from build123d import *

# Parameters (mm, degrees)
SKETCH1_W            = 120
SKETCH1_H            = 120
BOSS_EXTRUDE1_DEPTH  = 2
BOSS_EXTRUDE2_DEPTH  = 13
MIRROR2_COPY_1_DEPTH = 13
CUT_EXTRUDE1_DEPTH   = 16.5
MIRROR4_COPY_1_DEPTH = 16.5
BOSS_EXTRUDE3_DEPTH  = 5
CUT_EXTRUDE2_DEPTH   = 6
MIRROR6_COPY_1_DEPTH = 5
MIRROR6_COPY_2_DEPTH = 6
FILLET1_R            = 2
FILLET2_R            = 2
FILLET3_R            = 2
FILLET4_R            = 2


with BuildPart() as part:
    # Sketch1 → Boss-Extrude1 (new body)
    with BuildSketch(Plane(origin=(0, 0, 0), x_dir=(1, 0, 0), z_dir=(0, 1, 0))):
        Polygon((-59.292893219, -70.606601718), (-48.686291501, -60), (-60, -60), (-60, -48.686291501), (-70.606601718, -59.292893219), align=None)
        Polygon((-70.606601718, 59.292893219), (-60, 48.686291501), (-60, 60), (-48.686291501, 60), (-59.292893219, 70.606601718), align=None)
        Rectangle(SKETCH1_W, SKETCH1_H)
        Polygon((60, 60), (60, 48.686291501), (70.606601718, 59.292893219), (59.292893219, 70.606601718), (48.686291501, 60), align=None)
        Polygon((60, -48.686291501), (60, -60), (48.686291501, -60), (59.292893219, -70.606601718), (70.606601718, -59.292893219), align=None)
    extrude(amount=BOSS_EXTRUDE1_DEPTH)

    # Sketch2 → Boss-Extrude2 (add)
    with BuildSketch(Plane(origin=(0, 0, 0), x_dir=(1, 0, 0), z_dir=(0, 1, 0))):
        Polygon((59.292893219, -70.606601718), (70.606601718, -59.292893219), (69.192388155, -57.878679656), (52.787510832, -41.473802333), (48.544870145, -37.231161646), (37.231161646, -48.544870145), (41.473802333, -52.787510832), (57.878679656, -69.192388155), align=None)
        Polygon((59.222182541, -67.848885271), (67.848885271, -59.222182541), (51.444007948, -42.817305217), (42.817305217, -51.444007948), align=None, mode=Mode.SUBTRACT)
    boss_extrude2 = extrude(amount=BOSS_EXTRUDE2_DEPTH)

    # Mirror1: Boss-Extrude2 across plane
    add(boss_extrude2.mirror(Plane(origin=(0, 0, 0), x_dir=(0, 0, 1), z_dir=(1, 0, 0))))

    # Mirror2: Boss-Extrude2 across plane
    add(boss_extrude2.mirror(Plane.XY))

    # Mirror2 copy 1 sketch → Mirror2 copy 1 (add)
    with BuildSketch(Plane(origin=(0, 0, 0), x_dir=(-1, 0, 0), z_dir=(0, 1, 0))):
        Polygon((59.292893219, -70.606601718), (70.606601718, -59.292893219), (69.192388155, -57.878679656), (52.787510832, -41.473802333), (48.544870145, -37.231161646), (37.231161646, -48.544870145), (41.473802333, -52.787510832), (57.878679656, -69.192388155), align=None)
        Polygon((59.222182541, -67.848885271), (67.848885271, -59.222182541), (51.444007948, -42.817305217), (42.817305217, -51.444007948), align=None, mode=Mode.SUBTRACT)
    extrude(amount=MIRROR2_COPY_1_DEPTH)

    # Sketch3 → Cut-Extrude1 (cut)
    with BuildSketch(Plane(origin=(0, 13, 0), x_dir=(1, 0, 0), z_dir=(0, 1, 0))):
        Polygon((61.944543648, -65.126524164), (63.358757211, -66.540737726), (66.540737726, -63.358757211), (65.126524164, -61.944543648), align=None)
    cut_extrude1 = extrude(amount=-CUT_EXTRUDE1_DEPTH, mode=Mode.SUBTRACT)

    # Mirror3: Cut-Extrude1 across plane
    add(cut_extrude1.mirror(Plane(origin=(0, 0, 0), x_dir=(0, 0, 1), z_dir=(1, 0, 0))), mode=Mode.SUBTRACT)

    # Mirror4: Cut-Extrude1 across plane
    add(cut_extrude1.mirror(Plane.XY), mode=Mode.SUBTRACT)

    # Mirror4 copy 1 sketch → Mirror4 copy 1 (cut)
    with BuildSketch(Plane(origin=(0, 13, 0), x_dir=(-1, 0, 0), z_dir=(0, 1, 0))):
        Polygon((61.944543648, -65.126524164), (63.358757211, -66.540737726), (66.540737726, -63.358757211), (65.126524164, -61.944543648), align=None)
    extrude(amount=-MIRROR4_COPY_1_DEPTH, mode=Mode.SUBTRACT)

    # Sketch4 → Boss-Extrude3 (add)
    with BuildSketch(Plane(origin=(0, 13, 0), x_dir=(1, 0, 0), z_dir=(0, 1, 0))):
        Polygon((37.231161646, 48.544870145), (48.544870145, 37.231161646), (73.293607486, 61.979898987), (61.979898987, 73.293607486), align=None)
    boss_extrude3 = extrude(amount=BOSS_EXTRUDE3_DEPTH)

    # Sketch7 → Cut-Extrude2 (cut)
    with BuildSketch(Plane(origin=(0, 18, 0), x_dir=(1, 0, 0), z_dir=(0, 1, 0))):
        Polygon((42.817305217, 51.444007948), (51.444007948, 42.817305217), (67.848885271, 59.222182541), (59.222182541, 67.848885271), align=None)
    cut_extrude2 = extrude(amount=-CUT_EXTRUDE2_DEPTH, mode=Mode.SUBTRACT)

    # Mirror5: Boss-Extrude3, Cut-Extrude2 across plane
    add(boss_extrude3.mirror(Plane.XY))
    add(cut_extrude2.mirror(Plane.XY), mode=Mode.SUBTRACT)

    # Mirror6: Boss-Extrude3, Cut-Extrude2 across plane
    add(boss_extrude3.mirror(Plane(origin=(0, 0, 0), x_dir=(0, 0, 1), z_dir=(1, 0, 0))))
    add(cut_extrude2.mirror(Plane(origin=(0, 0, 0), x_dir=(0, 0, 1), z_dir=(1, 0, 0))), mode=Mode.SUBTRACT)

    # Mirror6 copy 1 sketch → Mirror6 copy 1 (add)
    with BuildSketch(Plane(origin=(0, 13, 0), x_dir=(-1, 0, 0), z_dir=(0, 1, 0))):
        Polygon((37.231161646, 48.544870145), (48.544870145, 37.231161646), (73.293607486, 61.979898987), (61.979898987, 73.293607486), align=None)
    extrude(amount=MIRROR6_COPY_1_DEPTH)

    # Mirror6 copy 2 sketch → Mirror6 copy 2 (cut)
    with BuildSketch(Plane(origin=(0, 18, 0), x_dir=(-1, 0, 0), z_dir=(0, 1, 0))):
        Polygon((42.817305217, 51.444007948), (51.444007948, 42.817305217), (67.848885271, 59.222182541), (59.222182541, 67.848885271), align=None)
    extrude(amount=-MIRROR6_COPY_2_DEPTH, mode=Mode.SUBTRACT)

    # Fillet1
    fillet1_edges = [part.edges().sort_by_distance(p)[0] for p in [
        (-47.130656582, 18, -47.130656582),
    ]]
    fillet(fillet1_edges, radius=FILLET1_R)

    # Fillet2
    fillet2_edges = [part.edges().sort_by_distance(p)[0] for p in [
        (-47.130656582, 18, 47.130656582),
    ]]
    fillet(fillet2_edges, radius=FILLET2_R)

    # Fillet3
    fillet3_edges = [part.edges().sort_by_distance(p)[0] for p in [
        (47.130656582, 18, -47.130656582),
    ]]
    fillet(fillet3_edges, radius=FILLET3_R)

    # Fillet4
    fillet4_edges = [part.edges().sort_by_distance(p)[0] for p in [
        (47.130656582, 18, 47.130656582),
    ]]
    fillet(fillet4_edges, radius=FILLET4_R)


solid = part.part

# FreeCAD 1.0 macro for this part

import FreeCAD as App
import Part
import Sketcher
Q = App.Units.Quantity


def edges_at(feature, points):
    """Names of the edges that pass closest to the given points."""
    edges = feature.Shape.Edges
    near = lambda p: min(range(len(edges)), key=lambda i: edges[i].distToShape(Part.Vertex(*p))[0])
    return sorted({f"Edge{near(p) + 1}" for p in points})

doc = App.newDocument("Part")
body = doc.addObject("PartDesign::Body", "Body")

sketch1 = body.newObject("Sketcher::SketchObject", "Sketch")
sketch1.AttachmentSupport = (doc.getObject("XZ_Plane"), [""])
sketch1.MapMode = "FlatFace"
sketch1.addGeometry([
    Part.LineSegment(App.Vector(-59.292893, 70.606602, 0), App.Vector(-48.686292, 60, 0)),
    Part.LineSegment(App.Vector(-48.686292, 60, 0), App.Vector(48.686292, 60, 0)),
    Part.LineSegment(App.Vector(48.686292, 60, 0), App.Vector(59.292893, 70.606602, 0)),
    Part.LineSegment(App.Vector(59.292893, 70.606602, 0), App.Vector(70.606602, 59.292893, 0)),
    Part.LineSegment(App.Vector(70.606602, 59.292893, 0), App.Vector(60, 48.686292, 0)),
    Part.LineSegment(App.Vector(60, 48.686292, 0), App.Vector(60, -48.686292, 0)),
    Part.LineSegment(App.Vector(60, -48.686292, 0), App.Vector(70.606602, -59.292893, 0)),
    Part.LineSegment(App.Vector(70.606602, -59.292893, 0), App.Vector(59.292893, -70.606602, 0)),
    Part.LineSegment(App.Vector(59.292893, -70.606602, 0), App.Vector(48.686292, -60, 0)),
    Part.LineSegment(App.Vector(48.686292, -60, 0), App.Vector(-48.686292, -60, 0)),
    Part.LineSegment(App.Vector(-48.686292, -60, 0), App.Vector(-59.292893, -70.606602, 0)),
    Part.LineSegment(App.Vector(-59.292893, -70.606602, 0), App.Vector(-70.606602, -59.292893, 0)),
    Part.LineSegment(App.Vector(-70.606602, -59.292893, 0), App.Vector(-60, -48.686292, 0)),
    Part.LineSegment(App.Vector(-60, -48.686292, 0), App.Vector(-60, 48.686292, 0)),
    Part.LineSegment(App.Vector(-60, 48.686292, 0), App.Vector(-70.606602, 59.292893, 0)),
    Part.LineSegment(App.Vector(-70.606602, 59.292893, 0), App.Vector(-59.292893, 70.606602, 0)),
], False)
sketch1.addConstraint([
    Sketcher.Constraint("Coincident", 0, 2, 1, 1),
    Sketcher.Constraint("Coincident", 1, 2, 2, 1),
    Sketcher.Constraint("Coincident", 2, 2, 3, 1),
    Sketcher.Constraint("Coincident", 3, 2, 4, 1),
    Sketcher.Constraint("Coincident", 4, 2, 5, 1),
    Sketcher.Constraint("Coincident", 5, 2, 6, 1),
    Sketcher.Constraint("Coincident", 6, 2, 7, 1),
    Sketcher.Constraint("Coincident", 7, 2, 8, 1),
    Sketcher.Constraint("Coincident", 8, 2, 9, 1),
    Sketcher.Constraint("Coincident", 9, 2, 10, 1),
    Sketcher.Constraint("Coincident", 10, 2, 11, 1),
    Sketcher.Constraint("Coincident", 11, 2, 12, 1),
    Sketcher.Constraint("Coincident", 12, 2, 13, 1),
    Sketcher.Constraint("Coincident", 13, 2, 14, 1),
    Sketcher.Constraint("Coincident", 14, 2, 15, 1),
    Sketcher.Constraint("Coincident", 15, 2, 0, 1),
    Sketcher.Constraint("Horizontal", 1),
    Sketcher.Constraint("Vertical", 5),
    Sketcher.Constraint("Horizontal", 9),
    Sketcher.Constraint("Vertical", 13),
    Sketcher.Constraint("Symmetric", 0, 2, 8, 2, -1, 1),
    Sketcher.Constraint("Symmetric", 2, 2, 10, 2, -1, 1),
    Sketcher.Constraint("Symmetric", 3, 2, 11, 2, -1, 1),
    Sketcher.Constraint("Symmetric", 4, 2, 12, 2, -1, 1),
    Sketcher.Constraint("Symmetric", 6, 2, 14, 2, -1, 1),
    Sketcher.Constraint("Symmetric", 7, 2, 15, 2, -1, 1),
    Sketcher.Constraint("Symmetric", 7, 2, 10, 2, -2),
    Sketcher.Constraint("Symmetric", 6, 2, 11, 2, -2),
    Sketcher.Constraint("Perpendicular", 0, 2),
    Sketcher.Constraint("Perpendicular", 2, 3),
    Sketcher.Constraint("Perpendicular", 3, 4),
    Sketcher.Constraint("Perpendicular", 4, 6),
    Sketcher.Constraint("Perpendicular", 6, 7),
    Sketcher.Constraint("Perpendicular", 8, 10),
    Sketcher.Constraint("Perpendicular", 12, 14),
    Sketcher.Constraint("Equal", 9, 5),
    Sketcher.Constraint("Equal", 2, 4),
    Sketcher.Constraint("Distance", 0, Q("15 mm")),
    Sketcher.Constraint("Distance", 3, Q("16 mm")),
    Sketcher.Constraint("DistanceY", -1, 1, 0, 2, Q("60 mm")),
])
pad1 = body.newObject("PartDesign::Pad", "Pad")
pad1.Profile = sketch1
pad1.Length = 2
pad1.Reversed = True

sketch2 = body.newObject("Sketcher::SketchObject", "Sketch001")
sketch2.AttachmentSupport = (doc.getObject("XZ_Plane"), [""])
sketch2.MapMode = "FlatFace"
sketch2.addGeometry([
    Part.LineSegment(App.Vector(59.292893, 70.606602, 0), App.Vector(70.606602, 59.292893, 0)),
    Part.LineSegment(App.Vector(70.606602, 59.292893, 0), App.Vector(48.54487, 37.231162, 0)),
    Part.LineSegment(App.Vector(48.54487, 37.231162, 0), App.Vector(37.231162, 48.54487, 0)),
    Part.LineSegment(App.Vector(37.231162, 48.54487, 0), App.Vector(59.292893, 70.606602, 0)),
    Part.LineSegment(App.Vector(67.848885, 59.222183, 0), App.Vector(59.222183, 67.848885, 0)),
    Part.LineSegment(App.Vector(59.222183, 67.848885, 0), App.Vector(42.817305, 51.444008, 0)),
    Part.LineSegment(App.Vector(42.817305, 51.444008, 0), App.Vector(51.444008, 42.817305, 0)),
    Part.LineSegment(App.Vector(51.444008, 42.817305, 0), App.Vector(67.848885, 59.222183, 0)),
], False)
sketch2.addConstraint([
    Sketcher.Constraint("Coincident", 0, 2, 1, 1),
    Sketcher.Constraint("Coincident", 1, 2, 2, 1),
    Sketcher.Constraint("Coincident", 2, 2, 3, 1),
    Sketcher.Constraint("Coincident", 3, 2, 0, 1),
    Sketcher.Constraint("Coincident", 4, 2, 5, 1),
    Sketcher.Constraint("Coincident", 5, 2, 6, 1),
    Sketcher.Constraint("Coincident", 6, 2, 7, 1),
    Sketcher.Constraint("Coincident", 7, 2, 4, 1),
    Sketcher.Constraint("Perpendicular", 0, 1),
    Sketcher.Constraint("Perpendicular", 1, 2),
    Sketcher.Constraint("Perpendicular", 2, 3),
    Sketcher.Constraint("Perpendicular", 3, 4),
    Sketcher.Constraint("Perpendicular", 4, 5),
    Sketcher.Constraint("Perpendicular", 5, 6),
    Sketcher.Constraint("Perpendicular", 6, 7),
    Sketcher.Constraint("Angle", 0, Q("-45 deg")),
    Sketcher.Constraint("Distance", 0, Q("16 mm")),
    Sketcher.Constraint("Distance", 1, Q("31.2 mm")),
    Sketcher.Constraint("Distance", 4, Q("12.2 mm")),
    Sketcher.Constraint("Distance", 5, Q("23.2 mm")),
    Sketcher.Constraint("DistanceX", -1, 1, 0, 2, Q("70.606602 mm")),
    Sketcher.Constraint("DistanceY", -1, 1, 3, 2, Q("70.606602 mm")),
    Sketcher.Constraint("DistanceX", 4, 2, 3, 2, Q("0.070711 mm")),
    Sketcher.Constraint("DistanceY", 6, 2, 0, 2, Q("16.475588 mm")),
])
pad2 = body.newObject("PartDesign::Pad", "Pad001")
pad2.Profile = sketch2
pad2.Length = 13
pad2.Reversed = True
doc.recompute()

mirrored = body.newObject("PartDesign::Mirrored", "Mirrored")
mirrored.Originals = [pad2]
mirrored.MirrorPlane = (doc.getObject("YZ_Plane"), [""])
body.Tip = mirrored
doc.recompute()

mirrored2 = body.newObject("PartDesign::Mirrored", "Mirrored001")
mirrored2.Originals = [pad2]
mirrored2.MirrorPlane = (doc.getObject("XY_Plane"), [""])
body.Tip = mirrored2

sketch3 = body.newObject("Sketcher::SketchObject", "Sketch002")
sketch3.AttachmentSupport = (doc.getObject("XZ_Plane"), [""])
sketch3.MapMode = "FlatFace"
sketch3.addGeometry([
    Part.LineSegment(App.Vector(-59.292893, -70.606602, 0), App.Vector(-70.606602, -59.292893, 0)),
    Part.LineSegment(App.Vector(-70.606602, -59.292893, 0), App.Vector(-48.54487, -37.231162, 0)),
    Part.LineSegment(App.Vector(-48.54487, -37.231162, 0), App.Vector(-37.231162, -48.54487, 0)),
    Part.LineSegment(App.Vector(-37.231162, -48.54487, 0), App.Vector(-59.292893, -70.606602, 0)),
    Part.LineSegment(App.Vector(-67.848885, -59.222183, 0), App.Vector(-59.222183, -67.848885, 0)),
    Part.LineSegment(App.Vector(-59.222183, -67.848885, 0), App.Vector(-42.817305, -51.444008, 0)),
    Part.LineSegment(App.Vector(-42.817305, -51.444008, 0), App.Vector(-51.444008, -42.817305, 0)),
    Part.LineSegment(App.Vector(-51.444008, -42.817305, 0), App.Vector(-67.848885, -59.222183, 0)),
], False)
sketch3.addConstraint([
    Sketcher.Constraint("Coincident", 0, 2, 1, 1),
    Sketcher.Constraint("Coincident", 1, 2, 2, 1),
    Sketcher.Constraint("Coincident", 2, 2, 3, 1),
    Sketcher.Constraint("Coincident", 3, 2, 0, 1),
    Sketcher.Constraint("Coincident", 4, 2, 5, 1),
    Sketcher.Constraint("Coincident", 5, 2, 6, 1),
    Sketcher.Constraint("Coincident", 6, 2, 7, 1),
    Sketcher.Constraint("Coincident", 7, 2, 4, 1),
    Sketcher.Constraint("Perpendicular", 0, 1),
    Sketcher.Constraint("Perpendicular", 1, 2),
    Sketcher.Constraint("Perpendicular", 2, 3),
    Sketcher.Constraint("Perpendicular", 3, 4),
    Sketcher.Constraint("Perpendicular", 4, 5),
    Sketcher.Constraint("Perpendicular", 5, 6),
    Sketcher.Constraint("Perpendicular", 6, 7),
    Sketcher.Constraint("Angle", 0, Q("135 deg")),
    Sketcher.Constraint("Distance", 0, Q("16 mm")),
    Sketcher.Constraint("Distance", 1, Q("31.2 mm")),
    Sketcher.Constraint("Distance", 4, Q("12.2 mm")),
    Sketcher.Constraint("Distance", 5, Q("23.2 mm")),
    Sketcher.Constraint("DistanceX", 0, 2, -1, 1, Q("70.606602 mm")),
    Sketcher.Constraint("DistanceY", 3, 2, -1, 1, Q("70.606602 mm")),
    Sketcher.Constraint("DistanceX", 3, 2, 4, 2, Q("0.070711 mm")),
    Sketcher.Constraint("DistanceY", 0, 2, 6, 2, Q("16.475588 mm")),
])
pad3 = body.newObject("PartDesign::Pad", "Pad002")
pad3.Profile = sketch3
pad3.Length = 13
pad3.Reversed = True

sketch4 = body.newObject("Sketcher::SketchObject", "Sketch003")
sketch4.AttachmentSupport = (doc.getObject("XZ_Plane"), [""])
sketch4.MapMode = "FlatFace"
sketch4.AttachmentOffset = App.Placement(App.Vector(0, 0, -13), App.Rotation())
sketch4.addGeometry([
    Part.LineSegment(App.Vector(61.944544, 65.126524, 0), App.Vector(63.358757, 66.540738, 0)),
    Part.LineSegment(App.Vector(63.358757, 66.540738, 0), App.Vector(66.540738, 63.358757, 0)),
    Part.LineSegment(App.Vector(66.540738, 63.358757, 0), App.Vector(65.126524, 61.944544, 0)),
    Part.LineSegment(App.Vector(65.126524, 61.944544, 0), App.Vector(61.944544, 65.126524, 0)),
], False)
sketch4.addConstraint([
    Sketcher.Constraint("Coincident", 0, 2, 1, 1),
    Sketcher.Constraint("Coincident", 1, 2, 2, 1),
    Sketcher.Constraint("Coincident", 2, 2, 3, 1),
    Sketcher.Constraint("Coincident", 3, 2, 0, 1),
    Sketcher.Constraint("Perpendicular", 0, 1),
    Sketcher.Constraint("Perpendicular", 1, 2),
    Sketcher.Constraint("Perpendicular", 2, 3),
    Sketcher.Constraint("Angle", 0, Q("45 deg")),
    Sketcher.Constraint("Distance", 0, Q("2 mm")),
    Sketcher.Constraint("Distance", 1, Q("4.5 mm")),
    Sketcher.Constraint("DistanceX", -1, 1, 0, 2, Q("63.358757 mm")),
    Sketcher.Constraint("DistanceY", -1, 1, 0, 2, Q("66.540738 mm")),
])
pocket1 = body.newObject("PartDesign::Pocket", "Pocket")
pocket1.Profile = sketch4
pocket1.Length = 16.5
pocket1.Reversed = True
doc.recompute()

mirrored3 = body.newObject("PartDesign::Mirrored", "Mirrored002")
mirrored3.Originals = [pocket1]
mirrored3.MirrorPlane = (doc.getObject("YZ_Plane"), [""])
body.Tip = mirrored3
doc.recompute()

mirrored4 = body.newObject("PartDesign::Mirrored", "Mirrored003")
mirrored4.Originals = [pocket1]
mirrored4.MirrorPlane = (doc.getObject("XY_Plane"), [""])
body.Tip = mirrored4

sketch5 = body.newObject("Sketcher::SketchObject", "Sketch004")
sketch5.AttachmentSupport = (doc.getObject("XZ_Plane"), [""])
sketch5.MapMode = "FlatFace"
sketch5.AttachmentOffset = App.Placement(App.Vector(0, 0, -13), App.Rotation())
sketch5.addGeometry([
    Part.LineSegment(App.Vector(-61.944544, -65.126524, 0), App.Vector(-63.358757, -66.540738, 0)),
    Part.LineSegment(App.Vector(-63.358757, -66.540738, 0), App.Vector(-66.540738, -63.358757, 0)),
    Part.LineSegment(App.Vector(-66.540738, -63.358757, 0), App.Vector(-65.126524, -61.944544, 0)),
    Part.LineSegment(App.Vector(-65.126524, -61.944544, 0), App.Vector(-61.944544, -65.126524, 0)),
], False)
sketch5.addConstraint([
    Sketcher.Constraint("Coincident", 0, 2, 1, 1),
    Sketcher.Constraint("Coincident", 1, 2, 2, 1),
    Sketcher.Constraint("Coincident", 2, 2, 3, 1),
    Sketcher.Constraint("Coincident", 3, 2, 0, 1),
    Sketcher.Constraint("Perpendicular", 0, 1),
    Sketcher.Constraint("Perpendicular", 1, 2),
    Sketcher.Constraint("Perpendicular", 2, 3),
    Sketcher.Constraint("Angle", 0, Q("-135 deg")),
    Sketcher.Constraint("Distance", 0, Q("2 mm")),
    Sketcher.Constraint("Distance", 1, Q("4.5 mm")),
    Sketcher.Constraint("DistanceX", 0, 2, -1, 1, Q("63.358757 mm")),
    Sketcher.Constraint("DistanceY", 0, 2, -1, 1, Q("66.540738 mm")),
])
pocket2 = body.newObject("PartDesign::Pocket", "Pocket001")
pocket2.Profile = sketch5
pocket2.Length = 16.5
pocket2.Reversed = True

sketch6 = body.newObject("Sketcher::SketchObject", "Sketch005")
sketch6.AttachmentSupport = (doc.getObject("XZ_Plane"), [""])
sketch6.MapMode = "FlatFace"
sketch6.AttachmentOffset = App.Placement(App.Vector(0, 0, -13), App.Rotation())
sketch6.addGeometry([
    Part.LineSegment(App.Vector(37.231162, -48.54487, 0), App.Vector(48.54487, -37.231162, 0)),
    Part.LineSegment(App.Vector(48.54487, -37.231162, 0), App.Vector(73.293607, -61.979899, 0)),
    Part.LineSegment(App.Vector(73.293607, -61.979899, 0), App.Vector(61.979899, -73.293607, 0)),
    Part.LineSegment(App.Vector(61.979899, -73.293607, 0), App.Vector(37.231162, -48.54487, 0)),
], False)
sketch6.addConstraint([
    Sketcher.Constraint("Coincident", 0, 2, 1, 1),
    Sketcher.Constraint("Coincident", 1, 2, 2, 1),
    Sketcher.Constraint("Coincident", 2, 2, 3, 1),
    Sketcher.Constraint("Coincident", 3, 2, 0, 1),
    Sketcher.Constraint("Perpendicular", 0, 1),
    Sketcher.Constraint("Perpendicular", 1, 2),
    Sketcher.Constraint("Perpendicular", 2, 3),
    Sketcher.Constraint("Angle", 0, Q("45 deg")),
    Sketcher.Constraint("Distance", 0, Q("16 mm")),
    Sketcher.Constraint("Distance", 1, Q("35 mm")),
    Sketcher.Constraint("DistanceY", 1, 2, -1, 1, Q("61.979899 mm")),
    Sketcher.Constraint("DistanceX", -1, 1, 2, 2, Q("61.979899 mm")),
])
pad4 = body.newObject("PartDesign::Pad", "Pad003")
pad4.Profile = sketch6
pad4.Length = 5
pad4.Reversed = True

sketch7 = body.newObject("Sketcher::SketchObject", "Sketch006")
sketch7.AttachmentSupport = (doc.getObject("XZ_Plane"), [""])
sketch7.MapMode = "FlatFace"
sketch7.AttachmentOffset = App.Placement(App.Vector(0, 0, -18), App.Rotation())
sketch7.addGeometry([
    Part.LineSegment(App.Vector(42.817305, -51.444008, 0), App.Vector(51.444008, -42.817305, 0)),
    Part.LineSegment(App.Vector(51.444008, -42.817305, 0), App.Vector(67.848885, -59.222183, 0)),
    Part.LineSegment(App.Vector(67.848885, -59.222183, 0), App.Vector(59.222183, -67.848885, 0)),
    Part.LineSegment(App.Vector(59.222183, -67.848885, 0), App.Vector(42.817305, -51.444008, 0)),
], False)
sketch7.addConstraint([
    Sketcher.Constraint("Coincident", 0, 2, 1, 1),
    Sketcher.Constraint("Coincident", 1, 2, 2, 1),
    Sketcher.Constraint("Coincident", 2, 2, 3, 1),
    Sketcher.Constraint("Coincident", 3, 2, 0, 1),
    Sketcher.Constraint("Perpendicular", 0, 1),
    Sketcher.Constraint("Perpendicular", 1, 2),
    Sketcher.Constraint("Perpendicular", 2, 3),
    Sketcher.Constraint("Angle", 0, Q("45 deg")),
    Sketcher.Constraint("Distance", 0, Q("12.2 mm")),
    Sketcher.Constraint("Distance", 1, Q("23.2 mm")),
    Sketcher.Constraint("DistanceX", -1, 1, 0, 2, Q("51.444008 mm")),
    Sketcher.Constraint("DistanceY", 0, 2, -1, 1, Q("42.817305 mm")),
])
pocket3 = body.newObject("PartDesign::Pocket", "Pocket002")
pocket3.Profile = sketch7
pocket3.Length = 6
pocket3.Reversed = True
doc.recompute()

mirrored5 = body.newObject("PartDesign::Mirrored", "Mirrored004")
mirrored5.Originals = [pad4, pocket3]
mirrored5.MirrorPlane = (doc.getObject("XY_Plane"), [""])
body.Tip = mirrored5
doc.recompute()

mirrored6 = body.newObject("PartDesign::Mirrored", "Mirrored005")
mirrored6.Originals = [pad4, pocket3]
mirrored6.MirrorPlane = (doc.getObject("YZ_Plane"), [""])
body.Tip = mirrored6

sketch8 = body.newObject("Sketcher::SketchObject", "Sketch007")
sketch8.AttachmentSupport = (doc.getObject("XZ_Plane"), [""])
sketch8.MapMode = "FlatFace"
sketch8.AttachmentOffset = App.Placement(App.Vector(0, 0, -13), App.Rotation())
sketch8.addGeometry([
    Part.LineSegment(App.Vector(-37.231162, 48.54487, 0), App.Vector(-48.54487, 37.231162, 0)),
    Part.LineSegment(App.Vector(-48.54487, 37.231162, 0), App.Vector(-73.293607, 61.979899, 0)),
    Part.LineSegment(App.Vector(-73.293607, 61.979899, 0), App.Vector(-61.979899, 73.293607, 0)),
    Part.LineSegment(App.Vector(-61.979899, 73.293607, 0), App.Vector(-37.231162, 48.54487, 0)),
], False)
sketch8.addConstraint([
    Sketcher.Constraint("Coincident", 0, 2, 1, 1),
    Sketcher.Constraint("Coincident", 1, 2, 2, 1),
    Sketcher.Constraint("Coincident", 2, 2, 3, 1),
    Sketcher.Constraint("Coincident", 3, 2, 0, 1),
    Sketcher.Constraint("Perpendicular", 0, 1),
    Sketcher.Constraint("Perpendicular", 1, 2),
    Sketcher.Constraint("Perpendicular", 2, 3),
    Sketcher.Constraint("Angle", 0, Q("-135 deg")),
    Sketcher.Constraint("Distance", 0, Q("16 mm")),
    Sketcher.Constraint("Distance", 1, Q("35 mm")),
    Sketcher.Constraint("DistanceY", -1, 1, 1, 2, Q("61.979899 mm")),
    Sketcher.Constraint("DistanceX", 2, 2, -1, 1, Q("61.979899 mm")),
])
pad5 = body.newObject("PartDesign::Pad", "Pad004")
pad5.Profile = sketch8
pad5.Length = 5
pad5.Reversed = True

sketch9 = body.newObject("Sketcher::SketchObject", "Sketch008")
sketch9.AttachmentSupport = (doc.getObject("XZ_Plane"), [""])
sketch9.MapMode = "FlatFace"
sketch9.AttachmentOffset = App.Placement(App.Vector(0, 0, -18), App.Rotation())
sketch9.addGeometry([
    Part.LineSegment(App.Vector(-42.817305, 51.444008, 0), App.Vector(-51.444008, 42.817305, 0)),
    Part.LineSegment(App.Vector(-51.444008, 42.817305, 0), App.Vector(-67.848885, 59.222183, 0)),
    Part.LineSegment(App.Vector(-67.848885, 59.222183, 0), App.Vector(-59.222183, 67.848885, 0)),
    Part.LineSegment(App.Vector(-59.222183, 67.848885, 0), App.Vector(-42.817305, 51.444008, 0)),
], False)
sketch9.addConstraint([
    Sketcher.Constraint("Coincident", 0, 2, 1, 1),
    Sketcher.Constraint("Coincident", 1, 2, 2, 1),
    Sketcher.Constraint("Coincident", 2, 2, 3, 1),
    Sketcher.Constraint("Coincident", 3, 2, 0, 1),
    Sketcher.Constraint("Perpendicular", 0, 1),
    Sketcher.Constraint("Perpendicular", 1, 2),
    Sketcher.Constraint("Perpendicular", 2, 3),
    Sketcher.Constraint("Angle", 0, Q("-135 deg")),
    Sketcher.Constraint("Distance", 0, Q("12.2 mm")),
    Sketcher.Constraint("Distance", 1, Q("23.2 mm")),
    Sketcher.Constraint("DistanceX", 0, 2, -1, 1, Q("51.444008 mm")),
    Sketcher.Constraint("DistanceY", -1, 1, 0, 2, Q("42.817305 mm")),
])
pocket4 = body.newObject("PartDesign::Pocket", "Pocket003")
pocket4.Profile = sketch9
pocket4.Length = 6
pocket4.Reversed = True
doc.recompute()

fillet = body.newObject("PartDesign::Fillet", "Fillet")
fillet.Base = (pocket4, edges_at(pocket4, [(-47.131, 18, -47.131)]))
fillet.Radius = 2
doc.recompute()

fillet2 = body.newObject("PartDesign::Fillet", "Fillet001")
fillet2.Base = (fillet, edges_at(fillet, [(-47.131, 18, 47.131)]))
fillet2.Radius = 2
doc.recompute()

fillet3 = body.newObject("PartDesign::Fillet", "Fillet002")
fillet3.Base = (fillet2, edges_at(fillet2, [(47.131, 18, -47.131)]))
fillet3.Radius = 2
doc.recompute()

fillet4 = body.newObject("PartDesign::Fillet", "Fillet003")
fillet4.Base = (fillet3, edges_at(fillet3, [(47.131, 18, 47.131)]))
fillet4.Radius = 2

doc.recompute()
